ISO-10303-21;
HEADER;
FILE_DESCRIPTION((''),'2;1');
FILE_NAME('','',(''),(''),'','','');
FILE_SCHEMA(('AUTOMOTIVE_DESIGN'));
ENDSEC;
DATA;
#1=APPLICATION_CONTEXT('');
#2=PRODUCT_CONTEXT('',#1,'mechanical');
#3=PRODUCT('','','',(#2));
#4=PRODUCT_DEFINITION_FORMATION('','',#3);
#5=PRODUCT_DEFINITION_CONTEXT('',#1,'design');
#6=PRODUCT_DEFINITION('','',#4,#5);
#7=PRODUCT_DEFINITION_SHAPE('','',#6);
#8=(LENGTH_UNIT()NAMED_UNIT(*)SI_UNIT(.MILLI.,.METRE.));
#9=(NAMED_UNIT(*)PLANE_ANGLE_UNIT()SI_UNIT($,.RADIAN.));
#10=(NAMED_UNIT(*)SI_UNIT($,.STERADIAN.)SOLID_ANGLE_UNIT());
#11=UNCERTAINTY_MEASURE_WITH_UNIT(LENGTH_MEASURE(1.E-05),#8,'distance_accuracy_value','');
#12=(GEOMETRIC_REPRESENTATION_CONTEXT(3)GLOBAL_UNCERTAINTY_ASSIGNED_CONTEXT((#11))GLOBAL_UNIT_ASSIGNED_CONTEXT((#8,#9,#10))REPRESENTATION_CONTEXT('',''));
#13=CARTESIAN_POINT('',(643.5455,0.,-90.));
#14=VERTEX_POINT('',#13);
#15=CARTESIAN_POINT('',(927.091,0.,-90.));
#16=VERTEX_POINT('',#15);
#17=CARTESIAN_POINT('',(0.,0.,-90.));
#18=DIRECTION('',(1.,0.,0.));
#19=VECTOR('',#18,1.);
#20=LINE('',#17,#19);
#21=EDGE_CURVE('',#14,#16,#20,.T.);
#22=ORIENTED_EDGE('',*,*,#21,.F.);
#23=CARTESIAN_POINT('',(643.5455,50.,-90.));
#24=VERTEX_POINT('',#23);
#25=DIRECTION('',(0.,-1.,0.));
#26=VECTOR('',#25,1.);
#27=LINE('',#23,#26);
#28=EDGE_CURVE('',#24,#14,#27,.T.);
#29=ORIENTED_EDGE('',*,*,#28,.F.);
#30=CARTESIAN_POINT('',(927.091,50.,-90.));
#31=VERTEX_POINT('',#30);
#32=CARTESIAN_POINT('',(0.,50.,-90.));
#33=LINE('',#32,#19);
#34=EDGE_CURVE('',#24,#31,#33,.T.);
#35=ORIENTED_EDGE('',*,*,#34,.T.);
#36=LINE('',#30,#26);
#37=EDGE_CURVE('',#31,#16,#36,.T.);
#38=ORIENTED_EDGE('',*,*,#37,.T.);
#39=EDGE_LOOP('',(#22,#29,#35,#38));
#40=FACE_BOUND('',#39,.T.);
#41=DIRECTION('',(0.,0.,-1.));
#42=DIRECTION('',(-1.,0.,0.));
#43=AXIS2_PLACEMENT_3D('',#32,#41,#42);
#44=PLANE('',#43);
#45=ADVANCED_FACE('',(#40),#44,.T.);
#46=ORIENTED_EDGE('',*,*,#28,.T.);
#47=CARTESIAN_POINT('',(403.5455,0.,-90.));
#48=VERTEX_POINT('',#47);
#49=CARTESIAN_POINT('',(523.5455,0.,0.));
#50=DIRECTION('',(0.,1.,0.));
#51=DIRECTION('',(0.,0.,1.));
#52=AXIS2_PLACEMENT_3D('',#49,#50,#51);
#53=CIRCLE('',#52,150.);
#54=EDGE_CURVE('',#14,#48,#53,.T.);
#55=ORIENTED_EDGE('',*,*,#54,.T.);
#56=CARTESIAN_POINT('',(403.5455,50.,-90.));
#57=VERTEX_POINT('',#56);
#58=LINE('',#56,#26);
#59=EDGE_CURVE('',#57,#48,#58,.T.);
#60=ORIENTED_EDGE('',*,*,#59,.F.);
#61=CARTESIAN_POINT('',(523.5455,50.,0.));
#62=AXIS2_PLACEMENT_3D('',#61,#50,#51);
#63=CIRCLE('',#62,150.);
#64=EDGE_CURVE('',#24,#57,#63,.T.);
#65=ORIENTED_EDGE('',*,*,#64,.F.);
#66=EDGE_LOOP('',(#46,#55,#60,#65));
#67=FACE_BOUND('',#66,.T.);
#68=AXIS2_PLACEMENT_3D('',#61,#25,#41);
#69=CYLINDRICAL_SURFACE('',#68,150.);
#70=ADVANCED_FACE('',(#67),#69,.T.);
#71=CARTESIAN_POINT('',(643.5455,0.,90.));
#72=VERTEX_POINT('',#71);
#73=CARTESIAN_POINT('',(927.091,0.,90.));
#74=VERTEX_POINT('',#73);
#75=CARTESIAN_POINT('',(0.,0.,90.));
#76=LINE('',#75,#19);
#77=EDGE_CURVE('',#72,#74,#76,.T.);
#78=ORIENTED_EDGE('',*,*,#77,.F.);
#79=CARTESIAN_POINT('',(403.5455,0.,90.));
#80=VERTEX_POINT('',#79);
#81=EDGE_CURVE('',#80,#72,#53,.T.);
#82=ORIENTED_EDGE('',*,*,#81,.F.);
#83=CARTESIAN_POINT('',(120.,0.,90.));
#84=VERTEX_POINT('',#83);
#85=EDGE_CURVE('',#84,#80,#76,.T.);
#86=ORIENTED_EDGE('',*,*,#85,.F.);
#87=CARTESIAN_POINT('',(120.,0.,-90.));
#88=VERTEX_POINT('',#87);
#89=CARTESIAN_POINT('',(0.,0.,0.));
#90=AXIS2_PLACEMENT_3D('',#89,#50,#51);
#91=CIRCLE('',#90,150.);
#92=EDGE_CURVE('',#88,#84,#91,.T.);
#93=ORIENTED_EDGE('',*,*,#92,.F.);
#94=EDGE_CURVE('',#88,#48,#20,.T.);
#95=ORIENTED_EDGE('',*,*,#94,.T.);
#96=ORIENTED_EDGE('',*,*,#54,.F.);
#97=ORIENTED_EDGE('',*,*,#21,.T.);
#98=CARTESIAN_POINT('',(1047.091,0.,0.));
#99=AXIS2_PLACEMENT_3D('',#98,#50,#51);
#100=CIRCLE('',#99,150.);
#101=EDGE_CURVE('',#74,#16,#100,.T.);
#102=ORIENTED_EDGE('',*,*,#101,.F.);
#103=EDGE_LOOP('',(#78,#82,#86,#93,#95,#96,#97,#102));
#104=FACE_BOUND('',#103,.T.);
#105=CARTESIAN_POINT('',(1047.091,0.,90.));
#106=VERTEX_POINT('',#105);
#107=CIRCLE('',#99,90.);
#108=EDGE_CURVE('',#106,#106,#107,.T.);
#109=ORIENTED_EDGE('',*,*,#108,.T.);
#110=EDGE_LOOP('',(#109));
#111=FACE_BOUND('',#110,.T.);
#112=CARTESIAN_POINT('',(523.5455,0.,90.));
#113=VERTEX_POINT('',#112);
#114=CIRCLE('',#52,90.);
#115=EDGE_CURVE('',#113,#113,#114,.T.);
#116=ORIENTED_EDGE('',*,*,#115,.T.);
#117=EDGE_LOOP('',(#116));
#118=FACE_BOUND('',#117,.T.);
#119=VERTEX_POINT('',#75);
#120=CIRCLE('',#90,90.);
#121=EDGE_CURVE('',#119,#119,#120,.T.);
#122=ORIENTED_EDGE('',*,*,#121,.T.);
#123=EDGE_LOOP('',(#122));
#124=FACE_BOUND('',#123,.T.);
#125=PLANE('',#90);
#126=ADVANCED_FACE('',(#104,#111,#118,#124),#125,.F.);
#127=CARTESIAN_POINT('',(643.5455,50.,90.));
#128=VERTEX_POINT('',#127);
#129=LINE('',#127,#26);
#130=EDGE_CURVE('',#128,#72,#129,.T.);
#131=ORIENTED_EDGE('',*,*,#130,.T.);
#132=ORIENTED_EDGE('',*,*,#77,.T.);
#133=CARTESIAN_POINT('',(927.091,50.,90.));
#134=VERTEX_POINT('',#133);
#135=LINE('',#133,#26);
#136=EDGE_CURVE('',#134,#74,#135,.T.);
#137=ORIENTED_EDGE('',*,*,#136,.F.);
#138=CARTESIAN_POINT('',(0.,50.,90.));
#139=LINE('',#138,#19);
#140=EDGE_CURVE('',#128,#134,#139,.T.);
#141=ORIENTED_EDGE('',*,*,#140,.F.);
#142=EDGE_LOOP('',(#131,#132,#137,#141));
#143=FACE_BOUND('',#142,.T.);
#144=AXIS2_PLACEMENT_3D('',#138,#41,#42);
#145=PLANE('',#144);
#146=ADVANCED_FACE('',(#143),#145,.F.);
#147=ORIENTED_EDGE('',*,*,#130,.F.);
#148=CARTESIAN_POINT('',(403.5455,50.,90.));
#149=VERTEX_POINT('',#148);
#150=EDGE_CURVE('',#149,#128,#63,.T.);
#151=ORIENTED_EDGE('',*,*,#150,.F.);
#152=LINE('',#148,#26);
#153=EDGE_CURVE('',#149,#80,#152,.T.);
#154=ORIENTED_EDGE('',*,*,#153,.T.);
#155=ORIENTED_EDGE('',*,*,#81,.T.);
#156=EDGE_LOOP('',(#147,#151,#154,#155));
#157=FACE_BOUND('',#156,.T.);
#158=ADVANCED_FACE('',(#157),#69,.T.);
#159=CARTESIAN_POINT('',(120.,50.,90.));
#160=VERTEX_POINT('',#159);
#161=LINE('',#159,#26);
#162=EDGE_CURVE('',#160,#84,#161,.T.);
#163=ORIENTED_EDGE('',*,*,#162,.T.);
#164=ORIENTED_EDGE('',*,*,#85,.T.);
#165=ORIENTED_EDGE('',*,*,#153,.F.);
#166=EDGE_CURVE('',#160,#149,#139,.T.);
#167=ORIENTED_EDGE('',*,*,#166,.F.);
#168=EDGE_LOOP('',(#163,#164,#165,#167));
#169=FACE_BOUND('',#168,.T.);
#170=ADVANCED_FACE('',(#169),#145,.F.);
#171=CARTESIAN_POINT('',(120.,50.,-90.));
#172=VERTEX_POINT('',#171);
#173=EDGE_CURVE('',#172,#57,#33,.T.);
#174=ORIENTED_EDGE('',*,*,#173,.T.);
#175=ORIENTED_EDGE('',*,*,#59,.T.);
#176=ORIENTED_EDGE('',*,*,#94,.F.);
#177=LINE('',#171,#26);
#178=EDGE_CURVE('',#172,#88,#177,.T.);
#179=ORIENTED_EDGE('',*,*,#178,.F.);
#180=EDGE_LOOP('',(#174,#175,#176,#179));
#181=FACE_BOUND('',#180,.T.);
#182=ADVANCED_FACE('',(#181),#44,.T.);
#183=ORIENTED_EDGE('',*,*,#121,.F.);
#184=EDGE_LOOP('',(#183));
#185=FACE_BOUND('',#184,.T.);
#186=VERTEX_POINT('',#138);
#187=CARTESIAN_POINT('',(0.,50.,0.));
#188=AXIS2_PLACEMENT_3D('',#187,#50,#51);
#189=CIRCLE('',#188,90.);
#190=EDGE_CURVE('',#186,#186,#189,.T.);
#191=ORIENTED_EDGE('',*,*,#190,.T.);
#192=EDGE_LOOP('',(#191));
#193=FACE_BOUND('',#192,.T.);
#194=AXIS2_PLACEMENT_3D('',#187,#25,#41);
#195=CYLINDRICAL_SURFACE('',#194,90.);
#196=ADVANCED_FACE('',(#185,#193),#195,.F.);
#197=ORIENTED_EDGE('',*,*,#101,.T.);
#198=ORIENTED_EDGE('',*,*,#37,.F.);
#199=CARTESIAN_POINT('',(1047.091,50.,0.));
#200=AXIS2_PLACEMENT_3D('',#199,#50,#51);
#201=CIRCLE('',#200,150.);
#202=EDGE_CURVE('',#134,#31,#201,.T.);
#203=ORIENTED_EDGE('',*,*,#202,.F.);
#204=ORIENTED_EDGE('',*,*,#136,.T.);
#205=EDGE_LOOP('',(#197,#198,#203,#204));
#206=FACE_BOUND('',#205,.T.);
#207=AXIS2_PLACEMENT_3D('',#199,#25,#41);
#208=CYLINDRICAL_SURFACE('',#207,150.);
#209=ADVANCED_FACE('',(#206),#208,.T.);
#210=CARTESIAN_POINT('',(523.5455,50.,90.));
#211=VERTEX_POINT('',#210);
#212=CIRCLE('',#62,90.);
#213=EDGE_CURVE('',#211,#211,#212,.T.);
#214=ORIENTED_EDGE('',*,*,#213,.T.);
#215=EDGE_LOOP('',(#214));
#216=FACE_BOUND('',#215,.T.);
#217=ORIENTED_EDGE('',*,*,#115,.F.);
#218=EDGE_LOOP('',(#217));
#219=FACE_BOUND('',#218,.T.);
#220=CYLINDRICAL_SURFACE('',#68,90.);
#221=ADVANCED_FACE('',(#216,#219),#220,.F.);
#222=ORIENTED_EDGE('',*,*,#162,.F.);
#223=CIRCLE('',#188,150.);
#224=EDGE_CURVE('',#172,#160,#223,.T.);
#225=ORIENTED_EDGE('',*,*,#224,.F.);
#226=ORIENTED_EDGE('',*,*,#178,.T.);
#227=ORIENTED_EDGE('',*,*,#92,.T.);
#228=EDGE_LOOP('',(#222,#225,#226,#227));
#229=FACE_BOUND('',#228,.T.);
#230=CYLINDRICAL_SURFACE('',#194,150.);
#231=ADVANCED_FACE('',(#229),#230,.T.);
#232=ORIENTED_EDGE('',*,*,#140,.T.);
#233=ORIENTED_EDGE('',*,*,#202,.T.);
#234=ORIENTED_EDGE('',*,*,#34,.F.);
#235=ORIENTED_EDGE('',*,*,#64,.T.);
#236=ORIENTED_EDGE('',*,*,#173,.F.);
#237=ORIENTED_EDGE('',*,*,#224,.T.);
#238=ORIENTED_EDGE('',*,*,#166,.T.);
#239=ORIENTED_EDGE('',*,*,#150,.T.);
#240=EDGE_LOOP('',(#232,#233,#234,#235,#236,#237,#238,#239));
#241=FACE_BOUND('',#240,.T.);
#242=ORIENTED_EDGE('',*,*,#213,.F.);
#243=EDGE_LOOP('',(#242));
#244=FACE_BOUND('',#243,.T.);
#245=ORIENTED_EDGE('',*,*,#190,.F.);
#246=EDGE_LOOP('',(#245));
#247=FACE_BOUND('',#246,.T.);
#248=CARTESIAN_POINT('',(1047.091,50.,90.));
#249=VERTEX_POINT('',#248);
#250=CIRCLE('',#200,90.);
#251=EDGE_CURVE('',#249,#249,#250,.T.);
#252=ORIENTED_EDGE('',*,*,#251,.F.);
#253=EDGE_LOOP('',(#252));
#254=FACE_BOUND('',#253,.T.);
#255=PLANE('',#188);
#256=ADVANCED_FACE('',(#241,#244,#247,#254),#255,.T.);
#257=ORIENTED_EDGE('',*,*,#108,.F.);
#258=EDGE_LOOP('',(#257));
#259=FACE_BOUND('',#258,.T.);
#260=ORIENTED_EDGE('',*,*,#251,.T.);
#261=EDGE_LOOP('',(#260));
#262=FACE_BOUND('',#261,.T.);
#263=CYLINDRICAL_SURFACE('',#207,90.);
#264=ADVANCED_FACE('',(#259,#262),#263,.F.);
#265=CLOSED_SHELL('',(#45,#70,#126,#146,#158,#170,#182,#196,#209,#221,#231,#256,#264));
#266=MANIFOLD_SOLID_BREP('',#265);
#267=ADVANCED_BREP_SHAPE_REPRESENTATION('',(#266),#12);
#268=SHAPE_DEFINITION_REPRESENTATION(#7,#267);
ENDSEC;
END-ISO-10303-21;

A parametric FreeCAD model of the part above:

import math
import FreeCAD as App
import Part
import Sketcher
from FreeCAD import Vector
Q = App.Units.Quantity

doc = App.newDocument("Part")
body = doc.addObject("PartDesign::Body", "Body")

sketch1 = body.newObject("Sketcher::SketchObject", "Sketch")
sketch1.AttachmentSupport = (doc.getObject("XZ_Plane"), [""])
sketch1.MapMode = "FlatFace"
sketch1.addGeometry([
    Part.ArcOfCircle(Part.Circle(Vector(0, 0, 0), Vector(0, 0, 1), 150), math.radians(37), math.radians(323)),
    Part.LineSegment(Vector(120, 90, 0), Vector(404, 90, 0)),
    Part.ArcOfCircle(Part.Circle(Vector(524, 0, 0), Vector(0, 0, 1), 150), math.radians(37), math.radians(143)),
    Part.LineSegment(Vector(644, 90, 0), Vector(927, 90, 0)),
    Part.ArcOfCircle(Part.Circle(Vector(1047, 0, 0), Vector(0, 0, 1), 150), math.radians(-143), math.radians(143)),
    Part.LineSegment(Vector(927, -90, 0), Vector(644, -90, 0)),
    Part.ArcOfCircle(Part.Circle(Vector(524, 0, 0), Vector(0, 0, 1), 150), math.radians(-143), math.radians(-37)),
    Part.LineSegment(Vector(404, -90, 0), Vector(120, -90, 0)),
    Part.Circle(Vector(0, 0, 0), Vector(0, 0, 1), 90),
    Part.Circle(Vector(524, 0, 0), Vector(0, 0, 1), 90),
    Part.Circle(Vector(1047, 0, 0), Vector(0, 0, 1), 90),
], False)
sketch1.addConstraint([
    Sketcher.Constraint("Coincident", 0, 1, 1, 1),
    Sketcher.Constraint("Coincident", 1, 2, 2, 2),
    Sketcher.Constraint("Coincident", 2, 1, 3, 1),
    Sketcher.Constraint("Coincident", 3, 2, 4, 2),
    Sketcher.Constraint("Coincident", 4, 1, 5, 1),
    Sketcher.Constraint("Coincident", 5, 2, 6, 2),
    Sketcher.Constraint("Coincident", 6, 1, 7, 1),
    Sketcher.Constraint("Coincident", 7, 2, 0, 2),
    Sketcher.Constraint("Horizontal", 1),
    Sketcher.Constraint("Horizontal", 3),
    Sketcher.Constraint("Horizontal", 5),
    Sketcher.Constraint("Horizontal", 7),
    Sketcher.Constraint("Coincident", 0, 3, -1, 1),
    Sketcher.Constraint("Coincident", 8, 3, -1, 1),
    Sketcher.Constraint("Coincident", 6, 3, 2, 3),
    Sketcher.Constraint("Coincident", 9, 3, 2, 3),
    Sketcher.Constraint("Coincident", 10, 3, 4, 3),
    Sketcher.Constraint("Equal", 0, 2),
    Sketcher.Constraint("Equal", 2, 4),
    Sketcher.Constraint("Equal", 4, 6),
    Sketcher.Constraint("Equal", 8, 9),
    Sketcher.Constraint("Equal", 9, 10),
    Sketcher.Constraint("Symmetric", 3, 2, 4, 1, -1),
    Sketcher.Constraint("Symmetric", 1, 2, 6, 1, -1),
    Sketcher.Constraint("Horizontal", 1, 2, 2, 1),
    Sketcher.Constraint("Equal", 1, 3),
    Sketcher.Constraint("Diameter", 8, Q("180 mm")),
    Sketcher.Constraint("Radius", 0, Q("150 mm")),
    Sketcher.Constraint("DistanceX", -1, 1, 0, 1, Q("120 mm")),
    Sketcher.Constraint("DistanceX", 1, 1, 1, 2, Q("283.5455 mm")),
])
pad1 = body.newObject("PartDesign::Pad", "Pad")
pad1.Profile = sketch1
pad1.Length = 50
pad1.Reversed = True

doc.recompute()
